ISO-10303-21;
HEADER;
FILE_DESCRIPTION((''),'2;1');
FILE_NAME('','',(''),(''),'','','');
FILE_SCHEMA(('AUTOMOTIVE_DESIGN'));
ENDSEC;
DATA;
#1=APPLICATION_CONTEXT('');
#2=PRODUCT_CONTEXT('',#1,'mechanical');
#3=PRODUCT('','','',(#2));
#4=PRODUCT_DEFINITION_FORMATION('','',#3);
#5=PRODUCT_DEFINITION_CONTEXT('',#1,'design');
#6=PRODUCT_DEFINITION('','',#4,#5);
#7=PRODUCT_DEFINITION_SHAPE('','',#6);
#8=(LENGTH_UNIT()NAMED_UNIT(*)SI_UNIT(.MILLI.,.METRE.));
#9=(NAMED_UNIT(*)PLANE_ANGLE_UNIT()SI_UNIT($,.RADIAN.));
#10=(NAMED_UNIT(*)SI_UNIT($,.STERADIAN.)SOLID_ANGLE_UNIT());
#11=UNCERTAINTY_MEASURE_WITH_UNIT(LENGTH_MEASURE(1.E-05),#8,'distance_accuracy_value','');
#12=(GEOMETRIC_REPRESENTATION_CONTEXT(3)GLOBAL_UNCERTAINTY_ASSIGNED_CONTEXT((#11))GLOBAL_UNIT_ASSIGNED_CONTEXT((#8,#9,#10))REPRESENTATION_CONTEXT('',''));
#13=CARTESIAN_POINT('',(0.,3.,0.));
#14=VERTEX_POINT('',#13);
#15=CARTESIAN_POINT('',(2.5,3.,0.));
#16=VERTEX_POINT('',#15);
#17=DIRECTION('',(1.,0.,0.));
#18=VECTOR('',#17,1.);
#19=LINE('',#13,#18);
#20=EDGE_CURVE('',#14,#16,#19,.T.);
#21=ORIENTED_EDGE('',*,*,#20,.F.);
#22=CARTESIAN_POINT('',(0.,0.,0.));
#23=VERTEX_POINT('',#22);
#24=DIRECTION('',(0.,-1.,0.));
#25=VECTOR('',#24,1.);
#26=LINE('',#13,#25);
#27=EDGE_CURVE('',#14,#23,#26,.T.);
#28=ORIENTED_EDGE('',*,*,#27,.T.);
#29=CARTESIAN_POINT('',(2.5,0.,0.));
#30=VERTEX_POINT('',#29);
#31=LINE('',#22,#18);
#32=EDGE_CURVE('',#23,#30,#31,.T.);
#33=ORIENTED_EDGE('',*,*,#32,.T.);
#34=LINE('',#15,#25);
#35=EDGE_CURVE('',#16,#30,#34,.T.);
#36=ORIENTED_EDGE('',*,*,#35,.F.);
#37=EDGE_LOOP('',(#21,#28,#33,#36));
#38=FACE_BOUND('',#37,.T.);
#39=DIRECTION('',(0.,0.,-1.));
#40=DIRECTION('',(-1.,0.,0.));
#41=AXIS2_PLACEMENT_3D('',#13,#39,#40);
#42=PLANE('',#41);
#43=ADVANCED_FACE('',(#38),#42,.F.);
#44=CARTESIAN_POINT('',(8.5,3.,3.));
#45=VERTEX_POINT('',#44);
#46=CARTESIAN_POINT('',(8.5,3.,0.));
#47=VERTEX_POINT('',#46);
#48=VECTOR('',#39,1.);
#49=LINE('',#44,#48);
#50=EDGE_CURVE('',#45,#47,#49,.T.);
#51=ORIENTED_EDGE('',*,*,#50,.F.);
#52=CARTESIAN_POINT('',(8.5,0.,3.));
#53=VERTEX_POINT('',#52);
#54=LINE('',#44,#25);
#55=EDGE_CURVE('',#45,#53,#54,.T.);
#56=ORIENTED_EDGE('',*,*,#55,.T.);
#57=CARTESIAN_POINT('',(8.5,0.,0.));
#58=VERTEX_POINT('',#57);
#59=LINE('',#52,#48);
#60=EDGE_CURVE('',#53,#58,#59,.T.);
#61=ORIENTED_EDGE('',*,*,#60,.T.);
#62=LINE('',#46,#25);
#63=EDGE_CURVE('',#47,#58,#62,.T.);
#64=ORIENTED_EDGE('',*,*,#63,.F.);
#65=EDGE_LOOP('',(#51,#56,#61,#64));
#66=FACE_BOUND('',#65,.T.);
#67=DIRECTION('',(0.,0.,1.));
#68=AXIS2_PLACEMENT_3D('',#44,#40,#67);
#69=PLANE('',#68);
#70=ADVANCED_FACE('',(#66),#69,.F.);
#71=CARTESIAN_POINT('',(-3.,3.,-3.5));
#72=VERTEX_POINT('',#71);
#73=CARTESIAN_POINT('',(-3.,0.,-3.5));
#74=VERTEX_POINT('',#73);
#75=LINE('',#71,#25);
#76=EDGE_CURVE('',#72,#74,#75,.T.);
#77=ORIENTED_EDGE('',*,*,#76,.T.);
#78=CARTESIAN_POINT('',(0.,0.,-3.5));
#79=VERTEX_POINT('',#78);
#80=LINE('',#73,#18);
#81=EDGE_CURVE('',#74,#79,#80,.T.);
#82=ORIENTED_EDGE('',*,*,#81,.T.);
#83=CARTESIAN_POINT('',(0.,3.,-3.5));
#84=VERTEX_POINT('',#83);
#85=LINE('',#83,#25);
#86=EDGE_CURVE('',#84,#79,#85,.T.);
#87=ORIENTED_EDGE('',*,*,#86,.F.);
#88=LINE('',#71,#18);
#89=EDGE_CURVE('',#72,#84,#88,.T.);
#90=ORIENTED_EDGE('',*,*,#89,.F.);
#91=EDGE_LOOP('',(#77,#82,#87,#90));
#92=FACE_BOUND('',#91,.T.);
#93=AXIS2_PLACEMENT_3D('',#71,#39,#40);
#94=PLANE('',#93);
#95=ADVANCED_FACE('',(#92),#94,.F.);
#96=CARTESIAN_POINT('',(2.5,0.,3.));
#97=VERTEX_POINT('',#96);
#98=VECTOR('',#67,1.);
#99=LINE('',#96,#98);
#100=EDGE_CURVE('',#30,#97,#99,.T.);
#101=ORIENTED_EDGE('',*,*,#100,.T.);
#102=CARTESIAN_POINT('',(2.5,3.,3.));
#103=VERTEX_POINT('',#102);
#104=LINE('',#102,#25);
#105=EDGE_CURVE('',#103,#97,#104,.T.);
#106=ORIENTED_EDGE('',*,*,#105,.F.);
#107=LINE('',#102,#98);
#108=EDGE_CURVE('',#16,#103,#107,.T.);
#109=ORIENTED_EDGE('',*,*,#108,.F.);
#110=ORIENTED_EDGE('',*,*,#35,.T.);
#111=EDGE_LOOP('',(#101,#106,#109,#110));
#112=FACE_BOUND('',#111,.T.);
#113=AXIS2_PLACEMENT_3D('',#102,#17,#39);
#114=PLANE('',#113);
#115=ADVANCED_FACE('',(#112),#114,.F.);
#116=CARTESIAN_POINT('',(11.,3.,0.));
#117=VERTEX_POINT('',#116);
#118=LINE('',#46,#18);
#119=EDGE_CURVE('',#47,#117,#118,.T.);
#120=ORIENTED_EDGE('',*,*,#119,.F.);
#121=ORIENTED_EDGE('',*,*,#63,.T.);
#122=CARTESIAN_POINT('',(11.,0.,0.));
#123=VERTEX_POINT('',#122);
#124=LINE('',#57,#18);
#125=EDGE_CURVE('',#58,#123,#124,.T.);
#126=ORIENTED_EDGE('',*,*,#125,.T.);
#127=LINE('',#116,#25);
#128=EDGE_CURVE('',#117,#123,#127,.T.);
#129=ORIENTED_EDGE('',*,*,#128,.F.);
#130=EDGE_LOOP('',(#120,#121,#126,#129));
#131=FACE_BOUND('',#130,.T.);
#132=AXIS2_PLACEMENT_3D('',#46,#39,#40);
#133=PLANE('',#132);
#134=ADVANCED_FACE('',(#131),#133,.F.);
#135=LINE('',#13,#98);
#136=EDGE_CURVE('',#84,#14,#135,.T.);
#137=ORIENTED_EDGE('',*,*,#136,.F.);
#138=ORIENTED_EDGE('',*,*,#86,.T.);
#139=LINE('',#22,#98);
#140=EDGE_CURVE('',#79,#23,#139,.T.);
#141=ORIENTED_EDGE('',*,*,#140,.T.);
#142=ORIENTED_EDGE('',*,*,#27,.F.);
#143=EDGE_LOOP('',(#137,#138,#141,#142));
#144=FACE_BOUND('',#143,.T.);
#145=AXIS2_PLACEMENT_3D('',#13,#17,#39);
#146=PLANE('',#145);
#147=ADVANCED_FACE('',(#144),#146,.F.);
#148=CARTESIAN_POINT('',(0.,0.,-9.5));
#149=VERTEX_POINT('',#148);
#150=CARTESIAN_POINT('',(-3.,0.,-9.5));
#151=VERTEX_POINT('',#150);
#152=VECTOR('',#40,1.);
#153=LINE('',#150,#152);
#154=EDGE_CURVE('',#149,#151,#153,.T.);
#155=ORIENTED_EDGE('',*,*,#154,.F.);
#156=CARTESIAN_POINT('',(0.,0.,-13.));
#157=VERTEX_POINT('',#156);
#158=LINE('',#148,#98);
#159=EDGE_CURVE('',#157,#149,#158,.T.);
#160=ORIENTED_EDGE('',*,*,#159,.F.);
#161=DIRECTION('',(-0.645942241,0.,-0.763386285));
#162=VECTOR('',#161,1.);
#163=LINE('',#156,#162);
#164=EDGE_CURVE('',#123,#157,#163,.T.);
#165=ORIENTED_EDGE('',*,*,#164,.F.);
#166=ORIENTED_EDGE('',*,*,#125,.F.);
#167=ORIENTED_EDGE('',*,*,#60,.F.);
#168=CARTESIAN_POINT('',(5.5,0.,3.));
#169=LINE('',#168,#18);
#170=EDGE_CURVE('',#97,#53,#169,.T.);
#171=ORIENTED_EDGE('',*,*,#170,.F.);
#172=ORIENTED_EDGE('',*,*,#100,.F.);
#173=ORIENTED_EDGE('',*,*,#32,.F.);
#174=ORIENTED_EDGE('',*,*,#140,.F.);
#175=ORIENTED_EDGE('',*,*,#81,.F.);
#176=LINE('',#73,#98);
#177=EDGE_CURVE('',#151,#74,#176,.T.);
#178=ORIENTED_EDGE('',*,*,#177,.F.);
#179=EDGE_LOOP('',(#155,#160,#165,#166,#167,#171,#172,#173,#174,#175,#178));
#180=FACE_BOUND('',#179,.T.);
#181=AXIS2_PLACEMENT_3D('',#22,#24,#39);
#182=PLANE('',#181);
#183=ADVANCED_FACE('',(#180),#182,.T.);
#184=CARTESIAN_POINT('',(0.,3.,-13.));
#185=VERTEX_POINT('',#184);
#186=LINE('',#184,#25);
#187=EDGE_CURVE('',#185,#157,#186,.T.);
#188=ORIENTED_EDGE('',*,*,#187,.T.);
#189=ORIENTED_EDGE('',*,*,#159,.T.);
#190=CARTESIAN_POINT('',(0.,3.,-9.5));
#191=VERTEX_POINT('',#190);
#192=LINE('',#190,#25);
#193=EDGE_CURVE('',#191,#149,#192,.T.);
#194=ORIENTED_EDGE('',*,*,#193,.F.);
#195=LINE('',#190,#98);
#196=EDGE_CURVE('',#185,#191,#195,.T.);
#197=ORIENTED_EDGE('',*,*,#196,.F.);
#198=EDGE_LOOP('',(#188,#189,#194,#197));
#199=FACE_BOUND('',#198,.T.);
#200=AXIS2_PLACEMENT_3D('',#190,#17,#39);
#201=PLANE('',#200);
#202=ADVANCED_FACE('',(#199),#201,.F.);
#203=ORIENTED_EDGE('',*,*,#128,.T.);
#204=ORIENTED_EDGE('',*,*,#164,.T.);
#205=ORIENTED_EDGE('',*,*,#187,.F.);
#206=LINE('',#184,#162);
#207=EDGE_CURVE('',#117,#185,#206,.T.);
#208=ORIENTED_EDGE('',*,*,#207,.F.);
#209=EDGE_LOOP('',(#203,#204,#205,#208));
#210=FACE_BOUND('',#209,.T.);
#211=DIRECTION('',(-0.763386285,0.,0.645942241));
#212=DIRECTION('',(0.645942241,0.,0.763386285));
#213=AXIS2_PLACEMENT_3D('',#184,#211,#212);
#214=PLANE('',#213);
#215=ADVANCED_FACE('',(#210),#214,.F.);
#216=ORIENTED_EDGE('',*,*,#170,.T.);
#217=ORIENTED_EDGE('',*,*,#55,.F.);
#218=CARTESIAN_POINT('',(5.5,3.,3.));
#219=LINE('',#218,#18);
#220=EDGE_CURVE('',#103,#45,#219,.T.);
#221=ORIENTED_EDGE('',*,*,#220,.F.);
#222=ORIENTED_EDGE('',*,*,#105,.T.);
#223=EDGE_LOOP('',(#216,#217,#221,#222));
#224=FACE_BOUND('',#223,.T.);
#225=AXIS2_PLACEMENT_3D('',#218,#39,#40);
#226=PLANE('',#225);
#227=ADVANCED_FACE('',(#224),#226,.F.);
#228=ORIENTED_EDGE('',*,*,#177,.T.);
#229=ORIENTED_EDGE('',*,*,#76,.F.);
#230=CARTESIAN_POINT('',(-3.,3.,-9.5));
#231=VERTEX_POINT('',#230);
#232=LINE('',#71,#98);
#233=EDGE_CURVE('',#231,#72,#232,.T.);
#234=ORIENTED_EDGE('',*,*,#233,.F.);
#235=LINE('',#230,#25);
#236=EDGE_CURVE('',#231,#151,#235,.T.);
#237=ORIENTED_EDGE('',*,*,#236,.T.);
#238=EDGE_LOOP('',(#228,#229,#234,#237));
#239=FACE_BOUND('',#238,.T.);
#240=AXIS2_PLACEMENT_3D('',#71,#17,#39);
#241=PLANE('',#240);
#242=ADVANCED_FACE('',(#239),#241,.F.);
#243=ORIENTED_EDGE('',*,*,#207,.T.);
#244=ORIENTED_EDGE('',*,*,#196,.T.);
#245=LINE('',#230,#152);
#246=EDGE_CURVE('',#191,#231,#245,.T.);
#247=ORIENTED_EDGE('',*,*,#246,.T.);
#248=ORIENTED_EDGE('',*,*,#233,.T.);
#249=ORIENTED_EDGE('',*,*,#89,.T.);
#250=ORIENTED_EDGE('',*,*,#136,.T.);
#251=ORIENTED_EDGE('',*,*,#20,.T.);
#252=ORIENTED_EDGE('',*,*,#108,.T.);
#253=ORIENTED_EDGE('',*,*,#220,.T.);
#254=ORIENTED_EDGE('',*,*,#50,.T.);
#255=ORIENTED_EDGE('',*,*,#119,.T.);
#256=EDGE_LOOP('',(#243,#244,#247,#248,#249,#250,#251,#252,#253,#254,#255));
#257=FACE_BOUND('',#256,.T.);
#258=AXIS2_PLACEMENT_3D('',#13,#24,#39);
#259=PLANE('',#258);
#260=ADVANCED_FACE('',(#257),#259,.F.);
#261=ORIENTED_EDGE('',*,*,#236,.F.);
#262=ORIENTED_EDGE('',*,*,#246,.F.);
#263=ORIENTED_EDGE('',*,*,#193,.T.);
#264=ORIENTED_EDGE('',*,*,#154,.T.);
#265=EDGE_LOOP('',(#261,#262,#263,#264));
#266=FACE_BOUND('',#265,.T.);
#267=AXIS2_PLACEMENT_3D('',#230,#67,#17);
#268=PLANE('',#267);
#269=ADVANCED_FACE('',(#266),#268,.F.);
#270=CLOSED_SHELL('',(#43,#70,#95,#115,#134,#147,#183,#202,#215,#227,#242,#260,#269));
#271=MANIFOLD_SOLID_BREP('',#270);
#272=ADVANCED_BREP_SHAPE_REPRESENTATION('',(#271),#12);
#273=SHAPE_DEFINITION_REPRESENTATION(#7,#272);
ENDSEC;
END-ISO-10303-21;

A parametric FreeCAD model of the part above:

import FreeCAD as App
import Part
import Sketcher
from FreeCAD import Vector
Q = App.Units.Quantity


def add_polygon(sketch, points):
    """Adds a closed chain of lines whose ends are joined by coincident constraints."""
    first, n = sketch.GeometryCount, len(points)
    for a, b in zip(points, points[1:] + points[:1]):
        sketch.addGeometry(Part.LineSegment(App.Vector(*a, 0), App.Vector(*b, 0)), False)
    for i in range(n):
        sketch.addConstraint(Sketcher.Constraint("Coincident", first + i, 2, first + (i + 1) % n, 1))

doc = App.newDocument("Part")
body = doc.addObject("PartDesign::Body", "Body")

sketch1 = body.newObject("Sketcher::SketchObject", "Sketch")
sketch1.AttachmentSupport = (doc.getObject("XZ_Plane"), [""])
sketch1.MapMode = "FlatFace"
add_polygon(sketch1, [(0, 0), (2.5, 0), (2.5, 3), (8.5, 3), (8.5, 0), (11, 0), (0, -13), (0, -9.5), (-3, -9.5), (-3, -3.5), (0, -3.5)])
sketch1.addConstraint([
    Sketcher.Constraint("Horizontal", 0),
    Sketcher.Constraint("Vertical", 1),
    Sketcher.Constraint("Horizontal", 2),
    Sketcher.Constraint("Vertical", 3),
    Sketcher.Constraint("Horizontal", 4),
    Sketcher.Constraint("Vertical", 6),
    Sketcher.Constraint("Horizontal", 7),
    Sketcher.Constraint("Vertical", 8),
    Sketcher.Constraint("Horizontal", 9),
    Sketcher.Constraint("Vertical", 10),
    Sketcher.Constraint("Coincident", 10, 2, -1, 1),
    Sketcher.Constraint("PointOnObject", 3, 2, -1),
    Sketcher.Constraint("PointOnObject", 5, 2, -2),
    Sketcher.Constraint("Equal", 0, 4),
    Sketcher.Constraint("Equal", 9, 1),
    Sketcher.Constraint("Equal", 2, 8),
    Sketcher.Constraint("Equal", 6, 10),
    Sketcher.Constraint("DistanceX", 2, 1, 2, 2, Q("6 mm")),
    Sketcher.Constraint("DistanceX", 7, 2, 7, 1, Q("3 mm")),
    Sketcher.Constraint("DistanceX", 0, 1, 0, 2, Q("2.5 mm")),
    Sketcher.Constraint("DistanceY", 6, 1, 6, 2, Q("3.5 mm")),
])
pad1 = body.newObject("PartDesign::Pad", "Pad")
pad1.Profile = sketch1
pad1.Length = 3
pad1.Reversed = True

doc.recompute()
